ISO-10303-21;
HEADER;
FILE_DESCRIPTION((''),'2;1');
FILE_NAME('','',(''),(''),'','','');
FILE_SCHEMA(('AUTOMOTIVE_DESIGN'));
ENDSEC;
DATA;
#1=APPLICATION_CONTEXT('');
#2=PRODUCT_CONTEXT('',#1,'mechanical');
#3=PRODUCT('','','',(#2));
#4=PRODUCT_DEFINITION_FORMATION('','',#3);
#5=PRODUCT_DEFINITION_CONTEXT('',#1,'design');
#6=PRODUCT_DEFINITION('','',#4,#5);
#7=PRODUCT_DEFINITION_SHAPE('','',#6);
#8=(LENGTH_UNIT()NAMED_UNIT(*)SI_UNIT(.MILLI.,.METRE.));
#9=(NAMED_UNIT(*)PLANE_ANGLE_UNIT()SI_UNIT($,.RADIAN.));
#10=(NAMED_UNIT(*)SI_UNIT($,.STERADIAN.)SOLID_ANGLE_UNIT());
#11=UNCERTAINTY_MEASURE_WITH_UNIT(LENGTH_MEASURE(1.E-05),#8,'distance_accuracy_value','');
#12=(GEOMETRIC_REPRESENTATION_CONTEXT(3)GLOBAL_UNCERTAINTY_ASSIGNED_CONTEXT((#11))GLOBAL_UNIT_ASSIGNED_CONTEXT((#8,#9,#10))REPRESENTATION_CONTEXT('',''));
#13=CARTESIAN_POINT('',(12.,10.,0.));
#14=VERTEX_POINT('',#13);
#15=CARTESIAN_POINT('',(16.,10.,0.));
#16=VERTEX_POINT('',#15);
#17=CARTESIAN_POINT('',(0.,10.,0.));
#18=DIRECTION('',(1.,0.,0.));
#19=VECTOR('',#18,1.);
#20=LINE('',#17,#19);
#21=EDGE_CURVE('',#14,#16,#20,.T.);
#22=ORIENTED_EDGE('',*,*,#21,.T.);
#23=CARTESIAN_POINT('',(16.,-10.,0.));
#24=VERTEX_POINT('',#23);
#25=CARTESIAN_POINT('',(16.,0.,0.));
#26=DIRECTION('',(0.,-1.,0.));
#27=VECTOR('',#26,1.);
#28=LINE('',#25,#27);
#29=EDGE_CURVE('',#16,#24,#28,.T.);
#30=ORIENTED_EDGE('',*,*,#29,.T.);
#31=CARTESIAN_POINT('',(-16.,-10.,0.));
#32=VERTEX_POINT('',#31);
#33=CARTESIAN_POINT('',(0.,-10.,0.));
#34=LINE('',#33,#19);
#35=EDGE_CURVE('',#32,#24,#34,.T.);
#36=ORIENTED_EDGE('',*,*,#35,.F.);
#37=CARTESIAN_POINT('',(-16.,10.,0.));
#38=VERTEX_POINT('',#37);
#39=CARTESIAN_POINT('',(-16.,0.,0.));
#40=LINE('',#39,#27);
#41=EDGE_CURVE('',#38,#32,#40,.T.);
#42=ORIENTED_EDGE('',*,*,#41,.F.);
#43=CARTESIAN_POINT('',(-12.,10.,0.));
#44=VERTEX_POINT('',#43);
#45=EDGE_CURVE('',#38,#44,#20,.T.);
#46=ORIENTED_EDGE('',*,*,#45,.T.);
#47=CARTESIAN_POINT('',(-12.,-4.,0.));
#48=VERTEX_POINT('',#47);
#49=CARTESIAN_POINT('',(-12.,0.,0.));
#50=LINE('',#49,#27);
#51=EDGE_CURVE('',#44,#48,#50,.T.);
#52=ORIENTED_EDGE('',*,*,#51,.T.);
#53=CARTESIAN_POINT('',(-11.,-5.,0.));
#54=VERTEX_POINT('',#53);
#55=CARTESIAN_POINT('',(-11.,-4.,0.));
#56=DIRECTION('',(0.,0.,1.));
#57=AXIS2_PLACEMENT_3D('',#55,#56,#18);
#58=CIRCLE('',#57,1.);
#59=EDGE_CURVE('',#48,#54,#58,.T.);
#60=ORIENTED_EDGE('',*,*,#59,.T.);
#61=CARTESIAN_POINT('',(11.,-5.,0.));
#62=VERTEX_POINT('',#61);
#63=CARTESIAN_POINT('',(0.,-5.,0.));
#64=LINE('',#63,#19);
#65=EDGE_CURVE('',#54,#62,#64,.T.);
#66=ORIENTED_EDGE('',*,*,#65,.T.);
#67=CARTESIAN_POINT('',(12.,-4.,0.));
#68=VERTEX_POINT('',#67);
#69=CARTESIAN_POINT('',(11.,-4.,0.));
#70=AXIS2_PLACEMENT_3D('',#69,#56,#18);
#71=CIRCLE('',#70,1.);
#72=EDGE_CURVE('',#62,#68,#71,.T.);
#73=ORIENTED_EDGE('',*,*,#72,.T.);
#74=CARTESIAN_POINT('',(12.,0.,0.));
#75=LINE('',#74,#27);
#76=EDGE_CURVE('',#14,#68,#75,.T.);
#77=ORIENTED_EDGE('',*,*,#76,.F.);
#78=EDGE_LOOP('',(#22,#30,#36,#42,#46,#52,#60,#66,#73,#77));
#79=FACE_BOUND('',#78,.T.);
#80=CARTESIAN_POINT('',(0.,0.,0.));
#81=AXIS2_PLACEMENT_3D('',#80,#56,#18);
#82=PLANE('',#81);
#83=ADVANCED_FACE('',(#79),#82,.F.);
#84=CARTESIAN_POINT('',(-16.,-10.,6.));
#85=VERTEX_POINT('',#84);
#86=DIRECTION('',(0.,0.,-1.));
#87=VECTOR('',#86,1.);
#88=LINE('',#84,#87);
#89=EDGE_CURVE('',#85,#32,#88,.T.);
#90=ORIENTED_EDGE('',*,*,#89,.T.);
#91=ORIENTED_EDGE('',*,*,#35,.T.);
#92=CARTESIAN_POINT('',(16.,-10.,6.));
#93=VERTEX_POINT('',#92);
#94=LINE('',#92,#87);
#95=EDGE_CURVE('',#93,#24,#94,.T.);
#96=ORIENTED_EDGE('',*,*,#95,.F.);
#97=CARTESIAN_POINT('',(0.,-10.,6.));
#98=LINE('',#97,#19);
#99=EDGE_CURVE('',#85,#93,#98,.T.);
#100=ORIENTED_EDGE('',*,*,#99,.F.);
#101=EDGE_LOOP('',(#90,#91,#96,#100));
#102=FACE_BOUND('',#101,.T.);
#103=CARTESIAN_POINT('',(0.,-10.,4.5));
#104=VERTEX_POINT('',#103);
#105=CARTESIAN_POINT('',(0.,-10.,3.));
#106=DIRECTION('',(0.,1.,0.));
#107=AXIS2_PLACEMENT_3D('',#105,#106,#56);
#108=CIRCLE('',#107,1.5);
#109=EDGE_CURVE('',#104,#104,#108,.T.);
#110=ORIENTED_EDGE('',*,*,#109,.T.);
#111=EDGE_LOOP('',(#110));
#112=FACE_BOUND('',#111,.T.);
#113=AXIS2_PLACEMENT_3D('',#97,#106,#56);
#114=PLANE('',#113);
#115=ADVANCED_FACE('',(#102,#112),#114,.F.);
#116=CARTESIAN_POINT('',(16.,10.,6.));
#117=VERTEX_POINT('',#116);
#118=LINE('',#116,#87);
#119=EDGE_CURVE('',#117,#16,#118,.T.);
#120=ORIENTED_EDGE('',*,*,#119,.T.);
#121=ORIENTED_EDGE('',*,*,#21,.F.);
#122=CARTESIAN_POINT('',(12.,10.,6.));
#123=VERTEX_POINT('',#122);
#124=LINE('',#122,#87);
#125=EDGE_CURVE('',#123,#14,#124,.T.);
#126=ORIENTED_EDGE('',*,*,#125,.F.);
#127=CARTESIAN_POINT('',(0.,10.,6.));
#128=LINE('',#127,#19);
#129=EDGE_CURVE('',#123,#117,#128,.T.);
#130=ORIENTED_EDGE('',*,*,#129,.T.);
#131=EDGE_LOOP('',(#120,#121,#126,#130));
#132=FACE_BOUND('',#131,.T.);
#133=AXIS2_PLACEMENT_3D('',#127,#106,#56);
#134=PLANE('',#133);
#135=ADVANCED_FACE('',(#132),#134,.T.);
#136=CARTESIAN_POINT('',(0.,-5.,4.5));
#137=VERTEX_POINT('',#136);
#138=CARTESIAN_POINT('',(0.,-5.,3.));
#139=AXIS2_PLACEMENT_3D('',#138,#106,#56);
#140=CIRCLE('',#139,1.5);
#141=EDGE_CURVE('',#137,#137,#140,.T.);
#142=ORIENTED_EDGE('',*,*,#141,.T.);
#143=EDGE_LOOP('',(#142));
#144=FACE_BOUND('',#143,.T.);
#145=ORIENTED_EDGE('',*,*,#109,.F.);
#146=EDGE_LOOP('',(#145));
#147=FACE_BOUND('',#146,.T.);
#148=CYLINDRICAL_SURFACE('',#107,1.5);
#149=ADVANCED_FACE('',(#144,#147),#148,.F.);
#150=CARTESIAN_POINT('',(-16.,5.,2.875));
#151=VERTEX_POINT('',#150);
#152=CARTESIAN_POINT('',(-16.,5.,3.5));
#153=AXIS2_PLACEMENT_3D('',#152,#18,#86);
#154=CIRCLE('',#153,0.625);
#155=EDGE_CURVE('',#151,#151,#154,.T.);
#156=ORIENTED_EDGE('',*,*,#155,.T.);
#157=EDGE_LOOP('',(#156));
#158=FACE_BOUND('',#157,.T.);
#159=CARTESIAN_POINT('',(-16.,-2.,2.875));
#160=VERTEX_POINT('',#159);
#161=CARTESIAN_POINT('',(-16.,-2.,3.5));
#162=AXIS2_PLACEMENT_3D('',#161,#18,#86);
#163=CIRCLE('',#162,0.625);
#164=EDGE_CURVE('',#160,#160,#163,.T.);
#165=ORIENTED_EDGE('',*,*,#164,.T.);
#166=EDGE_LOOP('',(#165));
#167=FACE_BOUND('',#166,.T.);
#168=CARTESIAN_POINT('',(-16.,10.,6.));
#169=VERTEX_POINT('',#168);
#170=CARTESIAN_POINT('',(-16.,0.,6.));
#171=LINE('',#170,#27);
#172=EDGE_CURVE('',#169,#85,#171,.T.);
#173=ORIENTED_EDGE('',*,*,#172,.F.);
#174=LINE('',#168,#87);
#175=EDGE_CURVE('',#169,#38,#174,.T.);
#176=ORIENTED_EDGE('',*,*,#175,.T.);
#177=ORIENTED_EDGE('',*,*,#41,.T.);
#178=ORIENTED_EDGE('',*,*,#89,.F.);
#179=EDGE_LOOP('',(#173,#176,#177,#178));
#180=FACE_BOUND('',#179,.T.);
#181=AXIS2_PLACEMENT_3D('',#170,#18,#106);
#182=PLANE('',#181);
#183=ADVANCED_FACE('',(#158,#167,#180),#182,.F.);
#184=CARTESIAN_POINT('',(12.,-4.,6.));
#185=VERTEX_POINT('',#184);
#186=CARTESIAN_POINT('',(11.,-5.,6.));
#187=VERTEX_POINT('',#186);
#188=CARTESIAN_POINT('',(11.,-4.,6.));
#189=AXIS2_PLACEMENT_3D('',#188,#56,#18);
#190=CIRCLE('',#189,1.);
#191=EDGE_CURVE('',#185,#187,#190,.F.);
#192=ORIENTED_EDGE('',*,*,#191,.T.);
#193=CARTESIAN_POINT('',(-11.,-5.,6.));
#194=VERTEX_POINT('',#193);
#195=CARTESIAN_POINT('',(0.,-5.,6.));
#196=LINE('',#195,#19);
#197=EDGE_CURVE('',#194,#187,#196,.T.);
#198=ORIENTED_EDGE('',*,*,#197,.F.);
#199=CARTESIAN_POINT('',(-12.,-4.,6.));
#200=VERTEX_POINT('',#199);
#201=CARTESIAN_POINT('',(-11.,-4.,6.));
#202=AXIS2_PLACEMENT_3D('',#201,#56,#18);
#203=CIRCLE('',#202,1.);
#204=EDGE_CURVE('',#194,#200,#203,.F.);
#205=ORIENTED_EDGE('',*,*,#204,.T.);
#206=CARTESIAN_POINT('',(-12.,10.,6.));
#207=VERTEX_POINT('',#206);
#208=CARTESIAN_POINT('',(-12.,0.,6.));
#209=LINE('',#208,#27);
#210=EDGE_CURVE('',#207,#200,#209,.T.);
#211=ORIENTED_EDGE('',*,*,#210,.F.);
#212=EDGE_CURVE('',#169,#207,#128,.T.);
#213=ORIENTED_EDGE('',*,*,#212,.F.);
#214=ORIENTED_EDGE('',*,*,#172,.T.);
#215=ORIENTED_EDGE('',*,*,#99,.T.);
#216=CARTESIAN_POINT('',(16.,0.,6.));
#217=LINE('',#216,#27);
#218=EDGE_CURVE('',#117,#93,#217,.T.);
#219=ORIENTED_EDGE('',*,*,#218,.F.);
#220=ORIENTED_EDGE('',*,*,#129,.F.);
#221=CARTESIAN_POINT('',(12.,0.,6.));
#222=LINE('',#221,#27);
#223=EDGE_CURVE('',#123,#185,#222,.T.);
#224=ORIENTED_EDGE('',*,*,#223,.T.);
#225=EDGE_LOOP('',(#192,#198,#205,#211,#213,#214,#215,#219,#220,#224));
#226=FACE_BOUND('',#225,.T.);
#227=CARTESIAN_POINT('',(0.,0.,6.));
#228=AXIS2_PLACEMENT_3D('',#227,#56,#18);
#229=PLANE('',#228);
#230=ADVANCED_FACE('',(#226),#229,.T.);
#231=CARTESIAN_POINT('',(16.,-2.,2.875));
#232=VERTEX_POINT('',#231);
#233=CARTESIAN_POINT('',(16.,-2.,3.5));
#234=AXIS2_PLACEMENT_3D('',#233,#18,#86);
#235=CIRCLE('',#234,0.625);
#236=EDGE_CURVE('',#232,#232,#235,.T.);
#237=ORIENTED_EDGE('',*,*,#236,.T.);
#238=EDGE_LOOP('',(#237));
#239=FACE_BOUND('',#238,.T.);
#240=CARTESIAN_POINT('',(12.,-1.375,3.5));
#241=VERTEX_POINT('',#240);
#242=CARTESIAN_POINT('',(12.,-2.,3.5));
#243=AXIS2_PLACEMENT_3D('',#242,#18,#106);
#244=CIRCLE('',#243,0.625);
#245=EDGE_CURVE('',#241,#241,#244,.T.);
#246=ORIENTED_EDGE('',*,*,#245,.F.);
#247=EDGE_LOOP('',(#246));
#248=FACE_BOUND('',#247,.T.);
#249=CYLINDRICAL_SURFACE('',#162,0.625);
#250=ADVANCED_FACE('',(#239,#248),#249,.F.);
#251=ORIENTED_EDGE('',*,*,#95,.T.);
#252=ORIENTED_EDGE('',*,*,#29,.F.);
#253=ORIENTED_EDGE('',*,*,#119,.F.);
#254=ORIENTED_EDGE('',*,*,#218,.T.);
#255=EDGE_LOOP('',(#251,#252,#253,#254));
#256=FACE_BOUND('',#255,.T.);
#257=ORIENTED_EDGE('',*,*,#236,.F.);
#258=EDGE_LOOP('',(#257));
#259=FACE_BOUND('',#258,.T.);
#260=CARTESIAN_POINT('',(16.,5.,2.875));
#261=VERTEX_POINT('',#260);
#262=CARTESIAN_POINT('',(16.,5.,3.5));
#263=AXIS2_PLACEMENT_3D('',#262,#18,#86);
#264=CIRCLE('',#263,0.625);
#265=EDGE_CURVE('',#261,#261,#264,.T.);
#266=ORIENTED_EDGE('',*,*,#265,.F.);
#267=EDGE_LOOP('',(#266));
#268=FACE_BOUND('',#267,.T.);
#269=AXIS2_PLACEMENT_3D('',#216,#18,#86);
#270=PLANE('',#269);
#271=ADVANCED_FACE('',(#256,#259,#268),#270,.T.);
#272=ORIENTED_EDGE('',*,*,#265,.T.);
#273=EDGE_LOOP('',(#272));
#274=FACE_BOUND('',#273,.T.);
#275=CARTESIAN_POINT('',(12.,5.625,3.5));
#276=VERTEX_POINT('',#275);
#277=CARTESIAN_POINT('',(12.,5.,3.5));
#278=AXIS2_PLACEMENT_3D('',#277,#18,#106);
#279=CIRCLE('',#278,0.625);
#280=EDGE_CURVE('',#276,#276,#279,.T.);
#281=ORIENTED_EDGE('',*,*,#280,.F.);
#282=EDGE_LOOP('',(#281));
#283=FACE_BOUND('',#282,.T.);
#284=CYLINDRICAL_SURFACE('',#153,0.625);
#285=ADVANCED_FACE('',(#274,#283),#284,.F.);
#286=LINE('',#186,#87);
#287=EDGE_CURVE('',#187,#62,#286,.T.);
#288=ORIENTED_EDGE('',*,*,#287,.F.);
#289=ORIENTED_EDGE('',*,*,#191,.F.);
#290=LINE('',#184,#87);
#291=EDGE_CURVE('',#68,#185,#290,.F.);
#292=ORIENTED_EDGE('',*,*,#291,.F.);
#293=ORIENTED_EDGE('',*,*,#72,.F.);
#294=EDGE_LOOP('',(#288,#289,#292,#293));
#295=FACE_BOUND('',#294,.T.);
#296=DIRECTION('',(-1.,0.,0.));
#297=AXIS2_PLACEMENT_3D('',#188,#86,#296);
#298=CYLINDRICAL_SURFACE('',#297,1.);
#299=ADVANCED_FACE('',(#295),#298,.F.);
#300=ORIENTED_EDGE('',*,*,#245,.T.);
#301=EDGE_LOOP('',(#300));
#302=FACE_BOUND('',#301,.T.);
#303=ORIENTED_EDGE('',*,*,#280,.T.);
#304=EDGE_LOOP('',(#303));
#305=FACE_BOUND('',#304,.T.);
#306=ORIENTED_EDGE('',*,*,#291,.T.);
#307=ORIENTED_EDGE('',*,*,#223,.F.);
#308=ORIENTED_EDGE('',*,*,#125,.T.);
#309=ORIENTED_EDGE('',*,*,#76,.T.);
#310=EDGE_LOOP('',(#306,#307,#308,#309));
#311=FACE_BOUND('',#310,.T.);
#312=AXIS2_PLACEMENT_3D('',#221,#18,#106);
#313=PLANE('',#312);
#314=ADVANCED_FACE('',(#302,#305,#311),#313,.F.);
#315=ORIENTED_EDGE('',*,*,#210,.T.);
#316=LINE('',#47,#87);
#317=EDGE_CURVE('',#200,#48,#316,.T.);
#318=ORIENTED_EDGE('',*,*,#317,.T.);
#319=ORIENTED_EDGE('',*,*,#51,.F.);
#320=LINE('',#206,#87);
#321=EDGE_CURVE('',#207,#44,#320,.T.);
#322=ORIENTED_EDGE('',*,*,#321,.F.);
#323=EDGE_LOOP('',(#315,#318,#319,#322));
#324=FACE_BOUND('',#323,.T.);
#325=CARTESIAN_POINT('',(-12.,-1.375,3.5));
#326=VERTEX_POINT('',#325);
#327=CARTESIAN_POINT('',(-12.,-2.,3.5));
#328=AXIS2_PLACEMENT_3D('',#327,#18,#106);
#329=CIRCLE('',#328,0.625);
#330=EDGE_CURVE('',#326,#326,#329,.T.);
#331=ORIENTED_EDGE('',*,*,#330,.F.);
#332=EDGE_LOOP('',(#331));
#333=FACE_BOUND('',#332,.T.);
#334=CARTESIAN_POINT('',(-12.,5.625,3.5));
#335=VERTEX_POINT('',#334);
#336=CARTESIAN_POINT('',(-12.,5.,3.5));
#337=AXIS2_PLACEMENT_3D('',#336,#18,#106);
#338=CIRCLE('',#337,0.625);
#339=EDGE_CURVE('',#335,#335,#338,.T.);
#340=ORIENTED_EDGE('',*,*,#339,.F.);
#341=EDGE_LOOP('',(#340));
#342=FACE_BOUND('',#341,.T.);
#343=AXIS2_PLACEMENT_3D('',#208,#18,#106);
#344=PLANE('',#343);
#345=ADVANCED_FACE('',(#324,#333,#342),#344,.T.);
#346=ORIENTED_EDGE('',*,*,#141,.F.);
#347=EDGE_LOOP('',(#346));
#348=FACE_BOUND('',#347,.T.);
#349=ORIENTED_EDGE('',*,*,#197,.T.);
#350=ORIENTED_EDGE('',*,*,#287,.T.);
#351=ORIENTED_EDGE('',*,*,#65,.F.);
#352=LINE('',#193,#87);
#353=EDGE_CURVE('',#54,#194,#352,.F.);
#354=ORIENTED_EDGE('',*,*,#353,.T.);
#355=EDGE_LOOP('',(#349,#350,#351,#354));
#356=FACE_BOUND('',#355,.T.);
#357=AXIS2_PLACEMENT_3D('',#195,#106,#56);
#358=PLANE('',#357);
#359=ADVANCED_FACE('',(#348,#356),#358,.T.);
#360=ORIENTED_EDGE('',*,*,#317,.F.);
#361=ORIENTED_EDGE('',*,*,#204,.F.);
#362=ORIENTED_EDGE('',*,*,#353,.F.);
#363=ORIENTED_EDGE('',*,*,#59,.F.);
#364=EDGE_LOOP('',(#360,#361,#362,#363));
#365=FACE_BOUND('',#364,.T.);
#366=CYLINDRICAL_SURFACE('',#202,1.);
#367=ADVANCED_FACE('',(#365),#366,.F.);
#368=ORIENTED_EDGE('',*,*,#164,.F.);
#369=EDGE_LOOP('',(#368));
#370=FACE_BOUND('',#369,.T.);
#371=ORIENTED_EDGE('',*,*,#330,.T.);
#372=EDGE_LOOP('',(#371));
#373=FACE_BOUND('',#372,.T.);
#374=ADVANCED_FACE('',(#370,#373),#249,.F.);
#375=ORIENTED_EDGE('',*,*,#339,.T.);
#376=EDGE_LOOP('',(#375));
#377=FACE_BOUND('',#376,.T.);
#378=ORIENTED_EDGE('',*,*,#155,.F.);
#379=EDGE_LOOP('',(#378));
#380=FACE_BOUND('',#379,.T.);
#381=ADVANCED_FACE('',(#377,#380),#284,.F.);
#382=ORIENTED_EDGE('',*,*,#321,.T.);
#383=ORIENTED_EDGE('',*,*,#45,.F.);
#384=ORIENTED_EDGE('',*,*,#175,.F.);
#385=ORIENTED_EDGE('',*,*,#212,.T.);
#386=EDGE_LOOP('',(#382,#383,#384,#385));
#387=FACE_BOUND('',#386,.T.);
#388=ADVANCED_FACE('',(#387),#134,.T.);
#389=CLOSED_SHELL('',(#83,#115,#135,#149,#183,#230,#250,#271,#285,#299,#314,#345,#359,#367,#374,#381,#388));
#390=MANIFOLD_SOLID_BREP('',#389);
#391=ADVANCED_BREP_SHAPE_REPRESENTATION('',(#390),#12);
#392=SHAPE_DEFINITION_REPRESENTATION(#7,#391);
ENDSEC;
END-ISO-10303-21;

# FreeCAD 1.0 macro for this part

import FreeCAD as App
import Part
import Sketcher
from FreeCAD import Vector


def edges_at(feature, points):
    """Names of the edges that pass closest to the given points."""
    edges = feature.Shape.Edges
    near = lambda p: min(range(len(edges)), key=lambda i: edges[i].distToShape(Part.Vertex(*p))[0])
    return sorted({f"Edge{near(p) + 1}" for p in points})

doc = App.newDocument("Part")
body = doc.addObject("PartDesign::Body", "Body")

sketch1 = body.newObject("Sketcher::SketchObject", "Sketch")
sketch1.AttachmentSupport = (doc.getObject("XY_Plane"), [""])
sketch1.MapMode = "FlatFace"
sketch1.addGeometry([
    Part.LineSegment(Vector(-12, 10, 0), Vector(-16, 10, 0)),
    Part.LineSegment(Vector(-16, 10, 0), Vector(-16, -10, 0)),
    Part.LineSegment(Vector(-16, -10, 0), Vector(16, -10, 0)),
    Part.LineSegment(Vector(16, -10, 0), Vector(16, 10, 0)),
    Part.LineSegment(Vector(16, 10, 0), Vector(12, 10, 0)),
    Part.LineSegment(Vector(12, 10, 0), Vector(12, -5, 0)),
    Part.LineSegment(Vector(12, -5, 0), Vector(-12, -5, 0)),
    Part.LineSegment(Vector(-12, -5, 0), Vector(-12, 10, 0)),
], False)
sketch1.addConstraint([
    Sketcher.Constraint("Coincident", 0, 2, 1, 1),
    Sketcher.Constraint("Coincident", 1, 2, 2, 1),
    Sketcher.Constraint("Coincident", 2, 2, 3, 1),
    Sketcher.Constraint("Coincident", 3, 2, 4, 1),
    Sketcher.Constraint("Coincident", 4, 2, 5, 1),
    Sketcher.Constraint("Coincident", 5, 2, 6, 1),
    Sketcher.Constraint("Coincident", 6, 2, 7, 1),
    Sketcher.Constraint("Coincident", 7, 2, 0, 1),
    Sketcher.Constraint("Horizontal", 0),
    Sketcher.Constraint("Vertical", 1),
    Sketcher.Constraint("Horizontal", 2),
    Sketcher.Constraint("Vertical", 3),
    Sketcher.Constraint("Horizontal", 4),
    Sketcher.Constraint("Vertical", 5),
    Sketcher.Constraint("Horizontal", 6),
    Sketcher.Constraint("Vertical", 7),
    Sketcher.Constraint("Symmetric", 0, 2, 2, 2, -1, 1),
    Sketcher.Constraint("Symmetric", 4, 2, 7, 2, -2),
    Sketcher.Constraint("DistanceX", 0, 2, 0, 1, 4.0),
    Sketcher.Constraint("DistanceX", 2, 1, 2, 2, 32.0),
    Sketcher.Constraint("DistanceY", 1, 2, 1, 1, 20.0),
    Sketcher.Constraint("DistanceY", 5, 2, 5, 1, 15.0),
])
pad1 = body.newObject("PartDesign::Pad", "Pad")
pad1.Profile = sketch1
pad1.Length = 6

sketch2 = body.newObject("Sketcher::SketchObject", "Sketch001")
sketch2.AttachmentSupport = (doc.getObject("XZ_Plane"), [""])
sketch2.MapMode = "FlatFace"
sketch2.AttachmentOffset = App.Placement(Vector(0, 0, 5), App.Rotation())
sketch2.addGeometry(Part.Circle(Vector(0, 3, 0), Vector(0, 0, 1), 1.5), False)
sketch2.addConstraint([
    Sketcher.Constraint("PointOnObject", 0, 3, -2),
    Sketcher.Constraint("Diameter", 0, 3.0),
    Sketcher.Constraint("DistanceY", -1, 1, 0, 3, 3.0),
])
pocket1 = body.newObject("PartDesign::Pocket", "Pocket")
pocket1.Profile = sketch2
pocket1.Length = 5
pocket1.Reversed = True

sketch3 = body.newObject("Sketcher::SketchObject", "Sketch002")
sketch3.AttachmentSupport = (doc.getObject("YZ_Plane"), [""])
sketch3.MapMode = "FlatFace"
sketch3.AttachmentOffset = App.Placement(Vector(0, 0, 16), App.Rotation())
sketch3.addGeometry([
    Part.Circle(Vector(5, 3.5, 0), Vector(0, 0, 1), 0.6),
    Part.Circle(Vector(-2, 3.5, 0), Vector(0, 0, 1), 0.6),
], False)
sketch3.addConstraint([
    Sketcher.Constraint("Equal", 0, 1),
    Sketcher.Constraint("Horizontal", 0, 3, 1, 3),
    Sketcher.Constraint("Diameter", 0, 1.25),
    Sketcher.Constraint("DistanceX", -1, 1, 0, 3, 5.0),
    Sketcher.Constraint("DistanceX", 1, 3, -1, 1, 2.0),
    Sketcher.Constraint("DistanceY", -1, 1, 0, 3, 3.5),
])
pocket2 = body.newObject("PartDesign::Pocket", "Pocket001")
pocket2.Profile = sketch3
pocket2.Type = "ThroughAll"
doc.recompute()

fillet = body.newObject("PartDesign::Fillet", "Fillet")
fillet.Base = (pocket2, edges_at(pocket2, [(-12, -5, 3)]))
fillet.Radius = 1
doc.recompute()

fillet2 = body.newObject("PartDesign::Fillet", "Fillet001")
fillet2.Base = (fillet, edges_at(fillet, [(12, -5, 3)]))
fillet2.Radius = 1

doc.recompute()
